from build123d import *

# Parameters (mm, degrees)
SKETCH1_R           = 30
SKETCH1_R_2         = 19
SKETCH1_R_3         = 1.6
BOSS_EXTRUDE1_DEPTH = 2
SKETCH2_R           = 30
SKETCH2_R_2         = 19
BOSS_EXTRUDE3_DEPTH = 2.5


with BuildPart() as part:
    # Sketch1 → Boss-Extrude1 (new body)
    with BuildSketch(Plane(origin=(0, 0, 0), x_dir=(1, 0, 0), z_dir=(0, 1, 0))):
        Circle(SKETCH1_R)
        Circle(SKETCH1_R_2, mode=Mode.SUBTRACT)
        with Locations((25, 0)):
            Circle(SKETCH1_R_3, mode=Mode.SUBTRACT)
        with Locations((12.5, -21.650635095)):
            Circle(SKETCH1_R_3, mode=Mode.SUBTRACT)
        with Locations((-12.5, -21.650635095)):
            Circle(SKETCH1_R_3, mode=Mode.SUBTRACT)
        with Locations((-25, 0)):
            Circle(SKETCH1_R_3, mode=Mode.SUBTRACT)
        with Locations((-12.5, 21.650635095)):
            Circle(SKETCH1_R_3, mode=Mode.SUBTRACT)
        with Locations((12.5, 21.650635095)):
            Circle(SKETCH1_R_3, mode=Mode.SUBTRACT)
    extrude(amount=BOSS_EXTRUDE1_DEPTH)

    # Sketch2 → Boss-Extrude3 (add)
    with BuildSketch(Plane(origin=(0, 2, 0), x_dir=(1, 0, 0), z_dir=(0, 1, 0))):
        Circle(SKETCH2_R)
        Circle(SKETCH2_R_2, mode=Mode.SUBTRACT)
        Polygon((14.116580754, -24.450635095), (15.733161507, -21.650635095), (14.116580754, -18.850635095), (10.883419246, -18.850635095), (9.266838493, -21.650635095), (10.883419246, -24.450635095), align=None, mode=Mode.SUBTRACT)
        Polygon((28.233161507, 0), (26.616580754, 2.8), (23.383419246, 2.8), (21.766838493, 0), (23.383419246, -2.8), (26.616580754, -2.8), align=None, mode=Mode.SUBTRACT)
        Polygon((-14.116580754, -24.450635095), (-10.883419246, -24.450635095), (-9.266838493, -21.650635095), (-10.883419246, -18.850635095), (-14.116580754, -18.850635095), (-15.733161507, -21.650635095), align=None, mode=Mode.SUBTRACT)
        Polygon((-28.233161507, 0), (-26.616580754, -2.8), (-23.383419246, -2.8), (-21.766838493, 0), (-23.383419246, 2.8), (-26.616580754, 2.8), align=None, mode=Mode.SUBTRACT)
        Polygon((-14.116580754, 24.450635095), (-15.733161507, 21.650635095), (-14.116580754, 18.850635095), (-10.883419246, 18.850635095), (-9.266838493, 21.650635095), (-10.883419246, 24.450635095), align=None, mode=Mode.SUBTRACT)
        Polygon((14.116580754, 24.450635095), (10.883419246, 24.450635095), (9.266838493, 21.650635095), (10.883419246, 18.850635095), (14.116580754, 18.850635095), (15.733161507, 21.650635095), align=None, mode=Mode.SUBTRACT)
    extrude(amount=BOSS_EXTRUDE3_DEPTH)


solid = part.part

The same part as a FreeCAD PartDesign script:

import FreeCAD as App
import Part
import Sketcher

V = App.Vector
Q = App.Units.Quantity


def add_polygon(sketch, points):
    """Adds a closed chain of lines whose ends are joined by coincident constraints."""
    first, n = sketch.GeometryCount, len(points)
    for a, b in zip(points, points[1:] + points[:1]):
        sketch.addGeometry(Part.LineSegment(App.Vector(*a, 0), App.Vector(*b, 0)), False)
    for i in range(n):
        sketch.addConstraint(Sketcher.Constraint("Coincident", first + i, 2, first + (i + 1) % n, 1))

doc = App.newDocument("Part")
body = doc.addObject("PartDesign::Body", "Body")

sketch1 = body.newObject("Sketcher::SketchObject", "Sketch")
sketch1.AttachmentSupport = (doc.getObject("XZ_Plane"), [""])
sketch1.MapMode = "FlatFace"
sketch1.addGeometry(Part.Circle(V(0, 0, 0), V(0, 0, 1), 30), False)
sketch1.addGeometry(Part.Circle(V(-12.5, 21.7, 0), V(0, 0, 1), 1.6), False)
sketch1.addGeometry(Part.Circle(V(12.5, 21.7, 0), V(0, 0, 1), 1.6), False)
sketch1.addGeometry(Part.Circle(V(-25, 0, 0), V(0, 0, 1), 1.6), False)
sketch1.addGeometry(Part.Circle(V(-12.5, -21.7, 0), V(0, 0, 1), 1.6), False)
sketch1.addGeometry(Part.Circle(V(0, 0, 0), V(0, 0, 1), 19), False)
sketch1.addGeometry(Part.Circle(V(25, 0, 0), V(0, 0, 1), 1.6), False)
sketch1.addGeometry(Part.Circle(V(12.5, -21.7, 0), V(0, 0, 1), 1.6), False)
sketch1.addConstraint(Sketcher.Constraint("Coincident", 0, 3, -1, 1))
sketch1.addConstraint(Sketcher.Constraint("Coincident", 5, 3, -1, 1))
sketch1.addConstraint(Sketcher.Constraint("Equal", 1, 2))
sketch1.addConstraint(Sketcher.Constraint("Equal", 2, 3))
sketch1.addConstraint(Sketcher.Constraint("Equal", 3, 4))
sketch1.addConstraint(Sketcher.Constraint("Equal", 4, 6))
sketch1.addConstraint(Sketcher.Constraint("Equal", 6, 7))
sketch1.addConstraint(Sketcher.Constraint("Symmetric", 2, 3, 4, 3, -1, 1))
sketch1.addConstraint(Sketcher.Constraint("Symmetric", 3, 3, 6, 3, -1, 1))
sketch1.addConstraint(Sketcher.Constraint("Symmetric", 1, 3, 7, 3, -1, 1))
sketch1.addConstraint(Sketcher.Constraint("Symmetric", 1, 3, 2, 3, -2))
sketch1.addConstraint(Sketcher.Constraint("PointOnObject", 3, 3, -1))
sketch1.addConstraint(Sketcher.Constraint("Diameter", 0, 60.0))
sketch1.addConstraint(Sketcher.Constraint("Diameter", 5, 38.0))
sketch1.addConstraint(Sketcher.Constraint("Diameter", 1, 3.2))
sketch1.addConstraint(Sketcher.Constraint("DistanceX", 3, 3, -1, 1, 25.0))
sketch1.addConstraint(Sketcher.Constraint("DistanceX", 1, 3, 2, 3, 25.0))
sketch1.addConstraint(Sketcher.Constraint("DistanceY", 4, 3, 1, 3, 43.30127))
pad1 = body.newObject("PartDesign::Pad", "Pad")
pad1.Profile = sketch1
pad1.Length = 2
pad1.Reversed = True

sketch2 = body.newObject("Sketcher::SketchObject", "Sketch001")
sketch2.AttachmentSupport = (doc.getObject("XZ_Plane"), [""])
sketch2.MapMode = "FlatFace"
sketch2.AttachmentOffset = App.Placement(V(0, 0, -2), App.Rotation())
sketch2.addGeometry(Part.Circle(V(0, 0, 0), V(0, 0, 1), 30), False)
add_polygon(sketch2, [(-10.9, 24.5), (-14.1, 24.5), (-15.7, 21.7), (-14.1, 18.9), (-10.9, 18.9), (-9.3, 21.7)])
add_polygon(sketch2, [(15.7, 21.7), (14.1, 24.5), (10.9, 24.5), (9.3, 21.7), (10.9, 18.9), (14.1, 18.9)])
add_polygon(sketch2, [(-26.6, 2.8), (-28.2, 0), (-26.6, -2.8), (-23.4, -2.8), (-21.8, 0), (-23.4, 2.8)])
add_polygon(sketch2, [(-15.7, -21.7), (-14.1, -24.5), (-10.9, -24.5), (-9.3, -21.7), (-10.9, -18.9), (-14.1, -18.9)])
sketch2.addGeometry(Part.Circle(V(0, 0, 0), V(0, 0, 1), 19), False)
add_polygon(sketch2, [(26.6, -2.8), (28.2, 0), (26.6, 2.8), (23.4, 2.8), (21.8, 0), (23.4, -2.8)])
add_polygon(sketch2, [(10.9, -24.5), (14.1, -24.5), (15.7, -21.7), (14.1, -18.9), (10.9, -18.9), (9.3, -21.7)])
sketch2.addConstraint(Sketcher.Constraint("Horizontal", 1))
sketch2.addConstraint(Sketcher.Constraint("Horizontal", 4))
sketch2.addConstraint(Sketcher.Constraint("Horizontal", 8))
sketch2.addConstraint(Sketcher.Constraint("Horizontal", 11))
sketch2.addConstraint(Sketcher.Constraint("Horizontal", 15))
sketch2.addConstraint(Sketcher.Constraint("Horizontal", 18))
sketch2.addConstraint(Sketcher.Constraint("Horizontal", 20))
sketch2.addConstraint(Sketcher.Constraint("Horizontal", 23))
sketch2.addConstraint(Sketcher.Constraint("Horizontal", 28))
sketch2.addConstraint(Sketcher.Constraint("Horizontal", 31))
sketch2.addConstraint(Sketcher.Constraint("Horizontal", 32))
sketch2.addConstraint(Sketcher.Constraint("Horizontal", 35))
sketch2.addConstraint(Sketcher.Constraint("Coincident", 0, 3, -1, 1))
sketch2.addConstraint(Sketcher.Constraint("Coincident", 25, 3, -1, 1))
sketch2.addConstraint(Sketcher.Constraint("Symmetric", 7, 2, 19, 2, -1, 1))
sketch2.addConstraint(Sketcher.Constraint("Symmetric", 9, 2, 21, 2, -1, 1))
sketch2.addConstraint(Sketcher.Constraint("Symmetric", 10, 2, 22, 2, -1, 1))
sketch2.addConstraint(Sketcher.Constraint("Symmetric", 12, 2, 24, 2, -1, 1))
sketch2.addConstraint(Sketcher.Constraint("Symmetric", 13, 2, 26, 2, -1, 1))
sketch2.addConstraint(Sketcher.Constraint("Symmetric", 14, 2, 27, 2, -1, 1))
sketch2.addConstraint(Sketcher.Constraint("Symmetric", 16, 2, 29, 2, -1, 1))
sketch2.addConstraint(Sketcher.Constraint("Symmetric", 17, 2, 30, 2, -1, 1))
sketch2.addConstraint(Sketcher.Constraint("Symmetric", 1, 2, 32, 2, -1, 1))
sketch2.addConstraint(Sketcher.Constraint("Symmetric", 2, 2, 33, 2, -1, 1))
sketch2.addConstraint(Sketcher.Constraint("Symmetric", 3, 2, 34, 2, -1, 1))
sketch2.addConstraint(Sketcher.Constraint("Symmetric", 5, 2, 36, 2, -1, 1))
sketch2.addConstraint(Sketcher.Constraint("Symmetric", 1, 2, 7, 2, -2))
sketch2.addConstraint(Sketcher.Constraint("Symmetric", 5, 2, 9, 2, -2))
sketch2.addConstraint(Sketcher.Constraint("Symmetric", 4, 2, 10, 2, -2))
sketch2.addConstraint(Sketcher.Constraint("Symmetric", 2, 2, 12, 2, -2))
sketch2.addConstraint(Sketcher.Constraint("Symmetric", 18, 2, 27, 2, -2))
sketch2.addConstraint(Sketcher.Constraint("PointOnObject", 13, 2, -1))
sketch2.addConstraint(Sketcher.Constraint("PointOnObject", 16, 2, -1))
sketch2.addConstraint(Sketcher.Constraint("Parallel", 2, 5))
sketch2.addConstraint(Sketcher.Constraint("Parallel", 3, 6))
sketch2.addConstraint(Sketcher.Constraint("Parallel", 6, 7))
sketch2.addConstraint(Sketcher.Constraint("Parallel", 5, 9))
sketch2.addConstraint(Sketcher.Constraint("Parallel", 9, 12))
sketch2.addConstraint(Sketcher.Constraint("Parallel", 12, 13))
sketch2.addConstraint(Sketcher.Constraint("Parallel", 13, 16))
sketch2.addConstraint(Sketcher.Constraint("Parallel", 14, 17))
sketch2.addConstraint(Sketcher.Constraint("Parallel", 16, 21))
sketch2.addConstraint(Sketcher.Constraint("Parallel", 21, 24))
sketch2.addConstraint(Sketcher.Constraint("Parallel", 24, 26))
sketch2.addConstraint(Sketcher.Constraint("Parallel", 26, 29))
sketch2.addConstraint(Sketcher.Constraint("Parallel", 33, 36))
sketch2.addConstraint(Sketcher.Constraint("Parallel", 34, 37))
sketch2.addConstraint(Sketcher.Constraint("Horizontal", 2, 2, 5, 2))
sketch2.addConstraint(Sketcher.Constraint("Vertical", 1, 2, 3, 2))
sketch2.addConstraint(Sketcher.Constraint("Equal", 11, 15))
sketch2.addConstraint(Sketcher.Constraint("Equal", 12, 13))
sketch2.addConstraint(Sketcher.Constraint("Diameter", 0, 60.0))
sketch2.addConstraint(Sketcher.Constraint("Diameter", 25, 38.0))
sketch2.addConstraint(Sketcher.Constraint("Angle", 2, Q("-120 deg")))
sketch2.addConstraint(Sketcher.Constraint("DistanceX", 6, 2, 7, 2, 25.0))
sketch2.addConstraint(Sketcher.Constraint("DistanceY", 14, 2, -1, 1, 2.8))
sketch2.addConstraint(Sketcher.Constraint("DistanceX", 13, 2, 2, 2, 12.5))
sketch2.addConstraint(Sketcher.Constraint("DistanceX", 1, 2, 1, 1, 3.233162))
sketch2.addConstraint(Sketcher.Constraint("DistanceY", -1, 1, 1, 2, 24.450635))
pad2 = body.newObject("PartDesign::Pad", "Pad001")
pad2.Profile = sketch2
pad2.Length = 2.5
pad2.Reversed = True

doc.recompute()
